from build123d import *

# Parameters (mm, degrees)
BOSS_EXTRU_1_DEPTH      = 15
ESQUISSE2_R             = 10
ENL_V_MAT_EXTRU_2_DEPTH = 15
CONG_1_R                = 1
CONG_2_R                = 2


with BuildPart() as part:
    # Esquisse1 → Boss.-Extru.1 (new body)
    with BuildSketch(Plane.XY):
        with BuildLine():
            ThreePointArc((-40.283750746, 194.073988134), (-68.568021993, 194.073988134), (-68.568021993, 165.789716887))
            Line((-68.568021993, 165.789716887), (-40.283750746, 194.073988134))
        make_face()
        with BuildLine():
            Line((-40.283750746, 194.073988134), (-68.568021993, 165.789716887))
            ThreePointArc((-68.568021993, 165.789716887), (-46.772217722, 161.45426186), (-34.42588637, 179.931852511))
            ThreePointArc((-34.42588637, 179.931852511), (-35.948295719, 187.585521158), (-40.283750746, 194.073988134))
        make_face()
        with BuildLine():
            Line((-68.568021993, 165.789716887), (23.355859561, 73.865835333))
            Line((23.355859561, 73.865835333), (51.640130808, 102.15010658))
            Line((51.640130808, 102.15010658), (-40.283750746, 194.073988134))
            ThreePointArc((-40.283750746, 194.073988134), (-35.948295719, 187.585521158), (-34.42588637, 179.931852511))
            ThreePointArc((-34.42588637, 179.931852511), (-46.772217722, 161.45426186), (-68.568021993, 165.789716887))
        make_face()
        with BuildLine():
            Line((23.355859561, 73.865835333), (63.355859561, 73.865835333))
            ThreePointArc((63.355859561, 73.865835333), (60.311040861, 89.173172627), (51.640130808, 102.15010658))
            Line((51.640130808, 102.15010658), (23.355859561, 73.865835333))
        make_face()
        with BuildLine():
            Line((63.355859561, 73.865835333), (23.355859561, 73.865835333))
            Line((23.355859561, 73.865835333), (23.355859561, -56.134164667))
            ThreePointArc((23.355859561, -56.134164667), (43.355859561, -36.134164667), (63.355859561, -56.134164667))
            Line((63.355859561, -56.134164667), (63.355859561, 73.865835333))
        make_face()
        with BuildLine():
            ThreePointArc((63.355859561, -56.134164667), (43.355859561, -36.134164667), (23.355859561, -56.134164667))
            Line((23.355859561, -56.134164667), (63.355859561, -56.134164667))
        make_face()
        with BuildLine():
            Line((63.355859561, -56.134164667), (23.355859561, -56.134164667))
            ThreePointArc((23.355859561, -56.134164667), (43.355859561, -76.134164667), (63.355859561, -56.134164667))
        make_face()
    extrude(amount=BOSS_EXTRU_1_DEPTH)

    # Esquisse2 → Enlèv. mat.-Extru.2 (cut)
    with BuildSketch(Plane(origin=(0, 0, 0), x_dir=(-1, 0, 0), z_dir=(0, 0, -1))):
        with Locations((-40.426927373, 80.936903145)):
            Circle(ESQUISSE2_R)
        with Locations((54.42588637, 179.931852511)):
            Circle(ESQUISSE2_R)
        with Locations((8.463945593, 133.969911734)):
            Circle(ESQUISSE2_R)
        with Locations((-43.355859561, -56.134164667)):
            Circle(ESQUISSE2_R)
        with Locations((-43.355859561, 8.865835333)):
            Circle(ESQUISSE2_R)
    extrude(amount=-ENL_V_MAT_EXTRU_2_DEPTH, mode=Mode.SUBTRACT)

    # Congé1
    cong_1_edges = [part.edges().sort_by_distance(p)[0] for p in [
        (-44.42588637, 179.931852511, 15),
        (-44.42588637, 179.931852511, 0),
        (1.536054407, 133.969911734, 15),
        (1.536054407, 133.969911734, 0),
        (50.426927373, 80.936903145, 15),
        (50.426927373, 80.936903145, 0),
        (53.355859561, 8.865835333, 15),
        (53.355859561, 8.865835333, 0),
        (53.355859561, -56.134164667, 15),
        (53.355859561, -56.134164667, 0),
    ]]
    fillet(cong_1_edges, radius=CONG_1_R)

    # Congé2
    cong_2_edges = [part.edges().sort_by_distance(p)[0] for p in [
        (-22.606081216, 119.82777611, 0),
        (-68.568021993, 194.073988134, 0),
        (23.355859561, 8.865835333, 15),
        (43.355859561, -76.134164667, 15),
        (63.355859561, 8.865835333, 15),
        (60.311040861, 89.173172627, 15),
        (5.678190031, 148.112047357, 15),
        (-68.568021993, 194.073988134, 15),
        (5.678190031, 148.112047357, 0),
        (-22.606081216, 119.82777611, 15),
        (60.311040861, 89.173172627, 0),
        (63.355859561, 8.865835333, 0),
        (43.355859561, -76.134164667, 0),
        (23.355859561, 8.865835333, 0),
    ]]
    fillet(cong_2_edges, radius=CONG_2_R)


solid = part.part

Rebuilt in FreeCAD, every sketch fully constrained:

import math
import FreeCAD as App
import Part
import Sketcher
from FreeCAD import Vector
Q = App.Units.Quantity


def edges_at(feature, points):
    """Names of the edges that pass closest to the given points."""
    edges = feature.Shape.Edges
    near = lambda p: min(range(len(edges)), key=lambda i: edges[i].distToShape(Part.Vertex(*p))[0])
    return sorted({f"Edge{near(p) + 1}" for p in points})

doc = App.newDocument("Part")
params = doc.addObject("Spreadsheet::Sheet", "Params")
for row, (alias, value) in enumerate([
    ("sketch1_radius", "40 mm"),
    ("sketch1_height", "130 mm"),
    ("sketch1_length", "130 mm"),
    ("pad1_length", "15 mm"),
    ("sketch2_diameter", "20 mm"),
    ("pocket1_length", "15 mm"),
    ("fillet_radius", "1 mm"),
    ("fillet2_radius", "2 mm"),
], start=1):
    params.set(f"A{row}", alias)
    params.set(f"B{row}", "=" + value)
    params.setAlias(f"B{row}", alias)

body = doc.addObject("PartDesign::Body", "Body")

sketch1 = body.newObject("Sketcher::SketchObject", "Sketch")
sketch1.AttachmentSupport = (doc.getObject("XY_Plane"), [""])
sketch1.MapMode = "FlatFace"
sketch1.addGeometry([
    Part.ArcOfCircle(Part.Circle(Vector(23, 74, 0), Vector(0, 0, 1), 40), math.radians(0), math.radians(45)),
    Part.LineSegment(Vector(52, 102, 0), Vector(-40, 194, 0)),
    Part.ArcOfCircle(Part.Circle(Vector(-54, 180, 0), Vector(0, 0, 1), 20), math.radians(45), math.radians(225)),
    Part.LineSegment(Vector(-69, 166, 0), Vector(23, 74, 0)),
    Part.LineSegment(Vector(23, 74, 0), Vector(23, -56, 0)),
    Part.ArcOfCircle(Part.Circle(Vector(43, -56, 0), Vector(0, 0, 1), 20), math.radians(180), math.radians(360)),
    Part.LineSegment(Vector(63, -56, 0), Vector(63, 74, 0)),
], False)
sketch1.addConstraint([
    Sketcher.Constraint("Tangent", 0, 2, 1, 1),
    Sketcher.Constraint("Tangent", 1, 2, 2, 1),
    Sketcher.Constraint("Tangent", 2, 2, 3, 1),
    Sketcher.Constraint("Coincident", 3, 2, 4, 1),
    Sketcher.Constraint("Tangent", 4, 2, 5, 1),
    Sketcher.Constraint("Tangent", 5, 2, 6, 1),
    Sketcher.Constraint("Tangent", 6, 2, 0, 1),
    Sketcher.Constraint("Vertical", 4),
    Sketcher.Constraint("Vertical", 6),
    Sketcher.Constraint("Coincident", 3, 2, 0, 3),
    Sketcher.Constraint("Equal", 2, 5),
    Sketcher.Constraint("Radius", 0, Q("40 mm")),
    Sketcher.Constraint("DistanceY", 4, 2, 4, 1, Q("130 mm")),
    Sketcher.Constraint("Angle", 1, Q("135 deg")),
    Sketcher.Constraint("Distance", 1, Q("130 mm")),
    Sketcher.Constraint("DistanceX", -1, 1, 0, 3, Q("23.35586 mm")),
    Sketcher.Constraint("DistanceY", -1, 1, 1, 2, Q("194.073988 mm")),
])
sketch1.setExpression("Constraints[11]", "Params.sketch1_radius")
sketch1.setExpression("Constraints[12]", "Params.sketch1_height")
sketch1.setExpression("Constraints[14]", "Params.sketch1_length")
pad1 = body.newObject("PartDesign::Pad", "Pad")
pad1.Profile = sketch1
pad1.setExpression("Length", "Params.pad1_length")

sketch2 = body.newObject("Sketcher::SketchObject", "Sketch001")
sketch2.AttachmentSupport = (doc.getObject("XY_Plane"), [""])
sketch2.MapMode = "FlatFace"
sketch2.addGeometry([
    Part.Circle(Vector(40, 81, 0), Vector(0, 0, 1), 10),
    Part.Circle(Vector(-54, 180, 0), Vector(0, 0, 1), 10),
    Part.Circle(Vector(-8, 134, 0), Vector(0, 0, 1), 10),
    Part.Circle(Vector(43, -56, 0), Vector(0, 0, 1), 10),
    Part.Circle(Vector(43, 9, 0), Vector(0, 0, 1), 10),
], False)
sketch2.addConstraint([
    Sketcher.Constraint("Equal", 0, 1),
    Sketcher.Constraint("Equal", 1, 2),
    Sketcher.Constraint("Equal", 2, 3),
    Sketcher.Constraint("Equal", 3, 4),
    Sketcher.Constraint("Vertical", 3, 3, 4, 3),
    Sketcher.Constraint("Diameter", 0, Q("20 mm")),
    Sketcher.Constraint("DistanceY", 3, 3, 4, 3, Q("65 mm")),
    Sketcher.Constraint("DistanceY", -1, 1, 2, 3, Q("133.969912 mm")),
    Sketcher.Constraint("DistanceX", -1, 1, 3, 3, Q("43.35586 mm")),
    Sketcher.Constraint("DistanceY", 0, 3, 1, 3, Q("98.994949 mm")),
    Sketcher.Constraint("DistanceX", 1, 3, 2, 3, Q("45.961941 mm")),
    Sketcher.Constraint("DistanceY", 2, 3, 1, 3, Q("45.961941 mm")),
    Sketcher.Constraint("DistanceX", -1, 1, 0, 3, Q("40.426927 mm")),
    Sketcher.Constraint("DistanceX", 1, 3, -1, 1, Q("54.425886 mm")),
    Sketcher.Constraint("DistanceY", 3, 3, -1, 1, Q("56.134165 mm")),
])
sketch2.setExpression("Constraints[5]", "Params.sketch2_diameter")
pocket1 = body.newObject("PartDesign::Pocket", "Pocket")
pocket1.Profile = sketch2
pocket1.setExpression("Length", "Params.pocket1_length")
pocket1.Reversed = True
doc.recompute()

fillet = body.newObject("PartDesign::Fillet", "Fillet")
fillet.Base = (pocket1, edges_at(pocket1, [
    (-44.426, 179.932, 15),
    (-44.426, 179.932, 0),
    (1.536, 133.97, 15),
    (1.536, 133.97, 0),
    (50.427, 80.937, 15),
    (50.427, 80.937, 0),
    (53.356, 8.866, 15),
    (53.356, 8.866, 0),
    (53.356, -56.134, 15),
    (53.356, -56.134, 0),
]))
fillet.setExpression("Radius", "Params.fillet_radius")
doc.recompute()

fillet2 = body.newObject("PartDesign::Fillet", "Fillet001")
fillet2.Base = (fillet, edges_at(fillet, [
    (-22.606, 119.828, 0),
    (-68.568, 194.074, 0),
    (23.356, 8.866, 15),
    (43.356, -76.134, 15),
    (63.356, 8.866, 15),
    (60.311, 89.173, 15),
    (5.678, 148.112, 15),
    (-68.568, 194.074, 15),
    (5.678, 148.112, 0),
    (-22.606, 119.828, 15),
    (60.311, 89.173, 0),
    (63.356, 8.866, 0),
    (43.356, -76.134, 0),
    (23.356, 8.866, 0),
]))
fillet2.setExpression("Radius", "Params.fillet2_radius")

doc.recompute()
